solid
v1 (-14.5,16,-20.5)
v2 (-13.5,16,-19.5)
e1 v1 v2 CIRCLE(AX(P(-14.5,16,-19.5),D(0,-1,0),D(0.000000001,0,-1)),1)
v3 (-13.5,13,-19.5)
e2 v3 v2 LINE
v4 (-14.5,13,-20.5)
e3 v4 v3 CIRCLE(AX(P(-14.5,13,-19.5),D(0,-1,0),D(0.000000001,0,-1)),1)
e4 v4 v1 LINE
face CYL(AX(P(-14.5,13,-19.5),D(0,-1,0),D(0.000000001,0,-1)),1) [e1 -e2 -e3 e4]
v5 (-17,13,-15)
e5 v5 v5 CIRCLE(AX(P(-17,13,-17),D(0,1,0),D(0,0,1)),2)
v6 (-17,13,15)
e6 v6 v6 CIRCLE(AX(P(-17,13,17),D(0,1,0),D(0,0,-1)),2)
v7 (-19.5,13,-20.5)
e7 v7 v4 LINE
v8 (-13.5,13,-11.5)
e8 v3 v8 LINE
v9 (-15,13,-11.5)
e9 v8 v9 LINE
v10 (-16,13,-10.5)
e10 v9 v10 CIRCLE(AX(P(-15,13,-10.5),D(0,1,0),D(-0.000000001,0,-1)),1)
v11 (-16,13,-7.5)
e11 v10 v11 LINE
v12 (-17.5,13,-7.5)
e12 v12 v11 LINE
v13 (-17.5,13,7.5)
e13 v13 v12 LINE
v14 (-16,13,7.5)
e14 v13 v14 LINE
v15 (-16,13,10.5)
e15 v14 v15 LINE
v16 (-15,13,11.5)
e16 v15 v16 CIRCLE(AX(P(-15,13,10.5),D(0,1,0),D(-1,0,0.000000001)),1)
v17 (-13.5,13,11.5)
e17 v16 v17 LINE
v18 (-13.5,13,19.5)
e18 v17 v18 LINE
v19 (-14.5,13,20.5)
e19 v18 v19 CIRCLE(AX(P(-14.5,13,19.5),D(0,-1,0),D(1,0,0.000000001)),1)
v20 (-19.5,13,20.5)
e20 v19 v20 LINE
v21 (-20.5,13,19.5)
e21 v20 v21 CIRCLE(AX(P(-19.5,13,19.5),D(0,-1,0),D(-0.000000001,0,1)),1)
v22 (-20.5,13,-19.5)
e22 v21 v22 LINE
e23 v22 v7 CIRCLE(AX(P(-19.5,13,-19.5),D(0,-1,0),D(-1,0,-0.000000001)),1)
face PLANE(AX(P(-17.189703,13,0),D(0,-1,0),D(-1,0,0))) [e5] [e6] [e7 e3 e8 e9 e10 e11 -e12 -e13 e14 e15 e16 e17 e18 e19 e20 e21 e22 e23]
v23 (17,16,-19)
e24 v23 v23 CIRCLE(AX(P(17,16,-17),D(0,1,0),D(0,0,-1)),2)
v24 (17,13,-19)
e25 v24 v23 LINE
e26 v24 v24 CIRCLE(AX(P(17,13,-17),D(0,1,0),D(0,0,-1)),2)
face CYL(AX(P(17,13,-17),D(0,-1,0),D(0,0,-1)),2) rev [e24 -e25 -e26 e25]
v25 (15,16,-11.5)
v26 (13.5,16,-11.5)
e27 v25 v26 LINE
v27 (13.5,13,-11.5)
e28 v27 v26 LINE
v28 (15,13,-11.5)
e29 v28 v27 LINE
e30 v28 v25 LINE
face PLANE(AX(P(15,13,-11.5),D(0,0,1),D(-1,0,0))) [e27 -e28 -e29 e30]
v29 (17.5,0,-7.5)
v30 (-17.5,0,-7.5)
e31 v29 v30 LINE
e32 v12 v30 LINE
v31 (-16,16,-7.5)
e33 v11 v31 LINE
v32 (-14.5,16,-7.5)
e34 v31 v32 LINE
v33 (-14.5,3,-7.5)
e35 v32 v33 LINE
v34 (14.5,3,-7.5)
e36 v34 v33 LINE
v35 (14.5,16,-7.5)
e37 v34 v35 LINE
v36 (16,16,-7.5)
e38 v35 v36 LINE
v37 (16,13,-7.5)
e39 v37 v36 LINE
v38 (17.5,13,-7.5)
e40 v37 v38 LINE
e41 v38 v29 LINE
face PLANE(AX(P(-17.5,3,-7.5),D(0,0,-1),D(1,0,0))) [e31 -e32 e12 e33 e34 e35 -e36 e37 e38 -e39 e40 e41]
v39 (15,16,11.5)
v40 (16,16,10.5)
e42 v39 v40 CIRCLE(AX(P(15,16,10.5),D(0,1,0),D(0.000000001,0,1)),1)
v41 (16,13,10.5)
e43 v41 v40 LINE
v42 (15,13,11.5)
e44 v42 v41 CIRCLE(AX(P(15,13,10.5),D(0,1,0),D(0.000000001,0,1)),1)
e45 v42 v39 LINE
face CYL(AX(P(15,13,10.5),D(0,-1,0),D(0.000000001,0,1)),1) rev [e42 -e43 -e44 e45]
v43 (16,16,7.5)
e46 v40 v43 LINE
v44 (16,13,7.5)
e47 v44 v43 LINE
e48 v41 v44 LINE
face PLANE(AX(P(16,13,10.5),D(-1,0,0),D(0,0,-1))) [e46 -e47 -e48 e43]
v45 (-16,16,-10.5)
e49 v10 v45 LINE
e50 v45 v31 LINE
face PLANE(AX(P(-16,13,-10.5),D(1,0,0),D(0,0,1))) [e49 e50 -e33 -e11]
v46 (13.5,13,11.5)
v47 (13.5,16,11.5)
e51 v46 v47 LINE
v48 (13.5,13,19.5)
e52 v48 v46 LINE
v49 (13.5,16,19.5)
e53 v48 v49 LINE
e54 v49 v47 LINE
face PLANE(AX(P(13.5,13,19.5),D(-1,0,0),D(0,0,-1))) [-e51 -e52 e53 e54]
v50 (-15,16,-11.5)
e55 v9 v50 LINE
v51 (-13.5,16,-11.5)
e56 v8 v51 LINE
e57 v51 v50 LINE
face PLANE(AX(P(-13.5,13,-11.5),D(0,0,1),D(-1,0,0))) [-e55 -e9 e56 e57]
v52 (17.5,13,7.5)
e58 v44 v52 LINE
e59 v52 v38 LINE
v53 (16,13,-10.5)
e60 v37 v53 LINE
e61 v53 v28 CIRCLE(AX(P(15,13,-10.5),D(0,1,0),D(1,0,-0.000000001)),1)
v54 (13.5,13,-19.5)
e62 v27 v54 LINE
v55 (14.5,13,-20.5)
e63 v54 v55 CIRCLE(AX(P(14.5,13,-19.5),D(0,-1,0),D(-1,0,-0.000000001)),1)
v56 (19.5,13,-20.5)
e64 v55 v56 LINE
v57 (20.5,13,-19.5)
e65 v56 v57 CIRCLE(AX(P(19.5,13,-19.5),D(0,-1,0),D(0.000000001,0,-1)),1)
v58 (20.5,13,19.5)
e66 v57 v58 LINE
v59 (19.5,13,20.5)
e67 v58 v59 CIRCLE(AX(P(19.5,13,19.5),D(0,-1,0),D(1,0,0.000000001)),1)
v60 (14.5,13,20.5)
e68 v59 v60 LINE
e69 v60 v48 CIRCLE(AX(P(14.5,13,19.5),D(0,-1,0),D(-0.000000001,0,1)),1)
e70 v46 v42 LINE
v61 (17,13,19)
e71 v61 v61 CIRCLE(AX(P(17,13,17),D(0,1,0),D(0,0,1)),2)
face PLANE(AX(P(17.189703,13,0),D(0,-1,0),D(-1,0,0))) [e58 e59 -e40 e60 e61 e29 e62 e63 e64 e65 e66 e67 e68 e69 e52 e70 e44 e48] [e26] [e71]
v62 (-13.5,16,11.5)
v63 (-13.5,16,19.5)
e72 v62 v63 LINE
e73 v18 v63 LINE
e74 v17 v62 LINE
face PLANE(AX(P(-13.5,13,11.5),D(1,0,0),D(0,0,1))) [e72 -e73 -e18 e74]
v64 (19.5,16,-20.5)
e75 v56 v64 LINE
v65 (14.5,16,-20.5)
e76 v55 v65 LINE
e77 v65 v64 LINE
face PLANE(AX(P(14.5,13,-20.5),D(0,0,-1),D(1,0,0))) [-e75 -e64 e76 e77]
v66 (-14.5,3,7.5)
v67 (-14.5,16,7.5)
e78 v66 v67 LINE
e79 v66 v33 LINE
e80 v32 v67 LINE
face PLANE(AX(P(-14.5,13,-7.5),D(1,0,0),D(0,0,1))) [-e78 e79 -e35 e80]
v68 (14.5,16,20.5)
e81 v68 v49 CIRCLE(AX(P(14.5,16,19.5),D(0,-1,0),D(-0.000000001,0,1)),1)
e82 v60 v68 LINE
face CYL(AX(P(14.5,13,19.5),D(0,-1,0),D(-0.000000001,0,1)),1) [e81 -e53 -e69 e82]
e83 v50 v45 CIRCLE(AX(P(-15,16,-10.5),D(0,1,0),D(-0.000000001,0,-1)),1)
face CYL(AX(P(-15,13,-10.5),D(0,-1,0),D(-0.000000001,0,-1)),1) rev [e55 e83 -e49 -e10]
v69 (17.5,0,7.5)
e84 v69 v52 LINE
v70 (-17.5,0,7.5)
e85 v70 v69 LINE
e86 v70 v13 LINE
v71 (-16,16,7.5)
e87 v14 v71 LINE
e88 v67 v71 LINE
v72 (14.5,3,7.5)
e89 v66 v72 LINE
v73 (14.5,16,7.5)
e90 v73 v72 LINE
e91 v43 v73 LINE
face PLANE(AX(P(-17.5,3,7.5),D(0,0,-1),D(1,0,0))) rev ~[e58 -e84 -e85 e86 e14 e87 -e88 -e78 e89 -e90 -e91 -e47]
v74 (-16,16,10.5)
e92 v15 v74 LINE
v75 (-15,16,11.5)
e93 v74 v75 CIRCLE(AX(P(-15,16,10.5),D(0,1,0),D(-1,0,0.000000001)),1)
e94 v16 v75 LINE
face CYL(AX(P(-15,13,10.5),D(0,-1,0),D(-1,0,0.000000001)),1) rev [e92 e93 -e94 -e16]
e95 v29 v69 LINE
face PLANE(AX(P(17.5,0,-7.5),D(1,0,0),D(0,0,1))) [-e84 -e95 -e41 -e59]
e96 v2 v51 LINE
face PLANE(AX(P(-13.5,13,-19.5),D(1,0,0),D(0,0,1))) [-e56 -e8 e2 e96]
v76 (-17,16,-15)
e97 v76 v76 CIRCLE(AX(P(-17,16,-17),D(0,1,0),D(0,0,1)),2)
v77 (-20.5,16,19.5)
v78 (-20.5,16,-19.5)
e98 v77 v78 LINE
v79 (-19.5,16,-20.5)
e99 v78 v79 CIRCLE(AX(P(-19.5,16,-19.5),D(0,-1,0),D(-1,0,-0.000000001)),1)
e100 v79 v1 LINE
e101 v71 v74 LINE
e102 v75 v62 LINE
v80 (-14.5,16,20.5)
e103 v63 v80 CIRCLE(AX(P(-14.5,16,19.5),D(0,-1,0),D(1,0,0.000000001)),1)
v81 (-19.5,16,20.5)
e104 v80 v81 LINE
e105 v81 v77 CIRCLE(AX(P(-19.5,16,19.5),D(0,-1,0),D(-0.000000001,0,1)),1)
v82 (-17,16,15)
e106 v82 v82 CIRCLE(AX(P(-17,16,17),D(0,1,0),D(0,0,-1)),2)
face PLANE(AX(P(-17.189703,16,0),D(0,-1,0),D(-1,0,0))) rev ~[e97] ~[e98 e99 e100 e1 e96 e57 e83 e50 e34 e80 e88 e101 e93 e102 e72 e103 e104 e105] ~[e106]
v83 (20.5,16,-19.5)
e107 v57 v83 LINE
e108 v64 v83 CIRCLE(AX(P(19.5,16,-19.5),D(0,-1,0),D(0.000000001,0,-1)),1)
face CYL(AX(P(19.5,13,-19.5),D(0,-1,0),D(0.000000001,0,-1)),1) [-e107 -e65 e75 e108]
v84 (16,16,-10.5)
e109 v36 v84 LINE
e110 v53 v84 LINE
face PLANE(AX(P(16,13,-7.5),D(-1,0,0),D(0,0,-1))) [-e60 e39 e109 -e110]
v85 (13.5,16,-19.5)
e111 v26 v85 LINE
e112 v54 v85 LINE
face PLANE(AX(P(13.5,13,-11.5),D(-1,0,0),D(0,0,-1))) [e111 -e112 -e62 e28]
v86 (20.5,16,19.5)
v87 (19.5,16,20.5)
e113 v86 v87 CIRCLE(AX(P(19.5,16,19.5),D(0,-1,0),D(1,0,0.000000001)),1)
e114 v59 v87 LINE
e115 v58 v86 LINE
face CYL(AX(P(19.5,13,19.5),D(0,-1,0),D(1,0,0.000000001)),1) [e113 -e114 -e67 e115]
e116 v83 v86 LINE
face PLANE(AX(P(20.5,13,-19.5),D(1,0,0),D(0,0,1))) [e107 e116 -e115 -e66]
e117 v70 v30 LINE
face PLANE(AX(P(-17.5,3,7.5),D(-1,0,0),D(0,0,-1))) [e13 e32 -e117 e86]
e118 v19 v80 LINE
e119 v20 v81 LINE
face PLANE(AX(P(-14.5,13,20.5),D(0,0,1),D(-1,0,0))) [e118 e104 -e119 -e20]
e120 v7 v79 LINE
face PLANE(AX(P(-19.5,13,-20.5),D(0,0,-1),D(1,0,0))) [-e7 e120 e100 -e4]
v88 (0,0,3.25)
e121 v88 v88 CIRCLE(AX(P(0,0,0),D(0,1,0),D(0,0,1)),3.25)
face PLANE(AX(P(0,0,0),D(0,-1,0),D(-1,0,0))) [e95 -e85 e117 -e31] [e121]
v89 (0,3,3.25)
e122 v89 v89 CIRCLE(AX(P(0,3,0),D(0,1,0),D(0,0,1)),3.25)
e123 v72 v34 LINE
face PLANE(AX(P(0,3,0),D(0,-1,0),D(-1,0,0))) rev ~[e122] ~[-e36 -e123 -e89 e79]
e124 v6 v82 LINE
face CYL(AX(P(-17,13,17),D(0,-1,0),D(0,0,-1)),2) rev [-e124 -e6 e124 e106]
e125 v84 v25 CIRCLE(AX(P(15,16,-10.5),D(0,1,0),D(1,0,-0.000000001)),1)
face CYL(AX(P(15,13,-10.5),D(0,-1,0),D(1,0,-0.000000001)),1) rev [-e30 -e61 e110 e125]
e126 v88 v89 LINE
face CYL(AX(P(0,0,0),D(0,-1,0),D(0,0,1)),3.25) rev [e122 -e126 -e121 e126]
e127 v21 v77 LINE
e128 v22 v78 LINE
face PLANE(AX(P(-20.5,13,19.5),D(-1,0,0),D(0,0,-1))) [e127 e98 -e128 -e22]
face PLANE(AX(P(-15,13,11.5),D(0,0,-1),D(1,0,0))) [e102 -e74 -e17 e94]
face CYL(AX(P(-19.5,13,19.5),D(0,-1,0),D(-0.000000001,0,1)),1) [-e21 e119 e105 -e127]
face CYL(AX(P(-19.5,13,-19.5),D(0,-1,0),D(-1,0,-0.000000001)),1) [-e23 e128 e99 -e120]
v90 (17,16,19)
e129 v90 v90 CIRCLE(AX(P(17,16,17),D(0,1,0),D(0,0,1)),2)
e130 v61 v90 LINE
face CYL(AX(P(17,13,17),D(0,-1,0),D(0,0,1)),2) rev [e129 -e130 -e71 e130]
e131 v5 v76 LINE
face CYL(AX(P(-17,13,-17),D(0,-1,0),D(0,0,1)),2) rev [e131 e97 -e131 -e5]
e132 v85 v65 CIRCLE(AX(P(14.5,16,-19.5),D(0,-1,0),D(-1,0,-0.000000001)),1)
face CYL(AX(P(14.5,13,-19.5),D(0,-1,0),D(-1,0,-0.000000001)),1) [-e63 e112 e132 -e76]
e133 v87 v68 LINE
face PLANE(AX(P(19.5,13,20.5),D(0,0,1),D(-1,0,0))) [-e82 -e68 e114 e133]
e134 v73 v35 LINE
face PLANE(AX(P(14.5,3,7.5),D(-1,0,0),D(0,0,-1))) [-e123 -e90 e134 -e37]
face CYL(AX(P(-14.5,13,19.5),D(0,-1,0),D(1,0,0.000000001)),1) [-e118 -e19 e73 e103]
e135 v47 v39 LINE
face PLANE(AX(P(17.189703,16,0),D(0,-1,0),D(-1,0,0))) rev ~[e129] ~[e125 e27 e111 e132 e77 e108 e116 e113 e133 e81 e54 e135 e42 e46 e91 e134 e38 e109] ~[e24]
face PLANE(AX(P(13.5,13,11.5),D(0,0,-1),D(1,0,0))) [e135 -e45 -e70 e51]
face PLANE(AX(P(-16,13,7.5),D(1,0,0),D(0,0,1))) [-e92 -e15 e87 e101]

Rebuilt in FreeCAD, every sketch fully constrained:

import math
import FreeCAD as App
import Part
import Sketcher

V = App.Vector

doc = App.newDocument("Part")
body = doc.addObject("PartDesign::Body", "Body")

# Sketch on XZ plane
sketch1 = body.newObject("Sketcher::SketchObject", "Sketch")
sketch1.AttachmentSupport = (doc.getObject("XZ_Plane"), [""])
sketch1.MapMode = "FlatFace"
sketch1.addGeometry([
    Part.LineSegment(V(17.5, -7.5, 0), V(-17.5, -7.5, 0)),  # 0
    Part.LineSegment(V(-17.5, -7.5, 0), V(-17.5, 7.5, 0)),  # 1
    Part.LineSegment(V(-17.5, 7.5, 0), V(17.5, 7.5, 0)),  # 2
    Part.LineSegment(V(17.5, 7.5, 0), V(17.5, -7.5, 0)),  # 3
    Part.Circle(V(0, 0, 0), V(0, 0, 1), 3.2),  # 4
], False)
sketch1.addConstraint([
    Sketcher.Constraint("Coincident", 0, 2, 1, 1),
    Sketcher.Constraint("Coincident", 1, 2, 2, 1),
    Sketcher.Constraint("Coincident", 2, 2, 3, 1),
    Sketcher.Constraint("Coincident", 3, 2, 0, 1),
    Sketcher.Constraint("Horizontal", 0),
    Sketcher.Constraint("Vertical", 1),
    Sketcher.Constraint("Horizontal", 2),
    Sketcher.Constraint("Vertical", 3),
    Sketcher.Constraint("Coincident", 4, 3, -1, 1),
    Sketcher.Constraint("Symmetric", 0, 2, 2, 2, -1, 1),
    Sketcher.Constraint("Diameter", 4, 6.5),
    Sketcher.Constraint("DistanceX", 0, 2, 0, 1, 35.0),
    Sketcher.Constraint("DistanceY", 1, 1, 1, 2, 15.0),
])
pad1 = body.newObject("PartDesign::Pad", "Pad")
pad1.Profile = sketch1
pad1.Length = 3
pad1.Reversed = True

# Sketch on XZ plane
sketch2 = body.newObject("Sketcher::SketchObject", "Sketch001")
sketch2.AttachmentSupport = (doc.getObject("XZ_Plane"), [""])
sketch2.MapMode = "FlatFace"
sketch2.AttachmentOffset = App.Placement(V(0, 0, -3), App.Rotation())
sketch2.addGeometry([
    Part.LineSegment(V(-17.5, -7.5, 0), V(-17.5, 7.5, 0)),  # 0
    Part.LineSegment(V(-17.5, 7.5, 0), V(-14.5, 7.5, 0)),  # 1
    Part.LineSegment(V(-14.5, 7.5, 0), V(-14.5, -7.5, 0)),  # 2
    Part.LineSegment(V(-14.5, -7.5, 0), V(-17.5, -7.5, 0)),  # 3
    Part.LineSegment(V(14.5, -7.5, 0), V(14.5, 7.5, 0)),  # 4
    Part.LineSegment(V(14.5, 7.5, 0), V(17.5, 7.5, 0)),  # 5
    Part.LineSegment(V(17.5, 7.5, 0), V(17.5, -7.5, 0)),  # 6
    Part.LineSegment(V(17.5, -7.5, 0), V(14.5, -7.5, 0)),  # 7
], False)
sketch2.addConstraint([
    Sketcher.Constraint("Coincident", 0, 2, 1, 1),
    Sketcher.Constraint("Coincident", 1, 2, 2, 1),
    Sketcher.Constraint("Coincident", 2, 2, 3, 1),
    Sketcher.Constraint("Coincident", 3, 2, 0, 1),
    Sketcher.Constraint("Coincident", 4, 2, 5, 1),
    Sketcher.Constraint("Coincident", 5, 2, 6, 1),
    Sketcher.Constraint("Coincident", 6, 2, 7, 1),
    Sketcher.Constraint("Coincident", 7, 2, 4, 1),
    Sketcher.Constraint("Vertical", 0),
    Sketcher.Constraint("Horizontal", 1),
    Sketcher.Constraint("Vertical", 2),
    Sketcher.Constraint("Horizontal", 3),
    Sketcher.Constraint("Vertical", 4),
    Sketcher.Constraint("Horizontal", 5),
    Sketcher.Constraint("Vertical", 6),
    Sketcher.Constraint("Horizontal", 7),
    Sketcher.Constraint("Symmetric", 2, 2, 4, 2, -1, 1),
    Sketcher.Constraint("Symmetric", 0, 2, 6, 2, -1, 1),
    Sketcher.Constraint("Horizontal", 1, 2, 4, 2),
    Sketcher.Constraint("DistanceX", 1, 1, 1, 2, 3.0),
    Sketcher.Constraint("DistanceY", 0, 1, 0, 2, 15.0),
    Sketcher.Constraint("DistanceX", 1, 2, 4, 2, 29.0),
])
pad2 = body.newObject("PartDesign::Pad", "Pad001")
pad2.Profile = sketch2
pad2.Length = 10
pad2.Reversed = True

# Sketch on XZ plane
sketch3 = body.newObject("Sketcher::SketchObject", "Sketch002")
sketch3.AttachmentSupport = (doc.getObject("XZ_Plane"), [""])
sketch3.MapMode = "FlatFace"
sketch3.AttachmentOffset = App.Placement(V(0, 0, -13), App.Rotation())
sketch3.addGeometry([
    Part.LineSegment(V(-13.5, 11.5, 0), V(-15, 11.5, 0)),  # 0
    Part.ArcOfCircle(Part.Circle(V(-15, 10.5, 0), V(0, 0, 1), 1), math.radians(90), math.radians(180)),  # 1
    Part.LineSegment(V(-16, 10.5, 0), V(-16, 7.5, 0)),  # 2
    Part.LineSegment(V(-16, 7.5, 0), V(-14.5, 7.5, 0)),  # 3
    Part.LineSegment(V(-14.5, 7.5, 0), V(-14.5, -7.5, 0)),  # 4
    Part.LineSegment(V(-14.5, -7.5, 0), V(-16, -7.5, 0)),  # 5
    Part.LineSegment(V(-16, -7.5, 0), V(-16, -10.5, 0)),  # 6
    Part.ArcOfCircle(Part.Circle(V(-15, -10.5, 0), V(0, 0, 1), 1), math.radians(-180), math.radians(-90)),  # 7
    Part.LineSegment(V(-15, -11.5, 0), V(-13.5, -11.5, 0)),  # 8
    Part.LineSegment(V(-13.5, -11.5, 0), V(-13.5, -19.5, 0)),  # 9
    Part.ArcOfCircle(Part.Circle(V(-14.5, -19.5, 0), V(0, 0, 1), 1), math.radians(-90), math.radians(0)),  # 10
    Part.LineSegment(V(-14.5, -20.5, 0), V(-19.5, -20.5, 0)),  # 11
    Part.ArcOfCircle(Part.Circle(V(-19.5, -19.5, 0), V(0, 0, 1), 1), math.radians(-180), math.radians(-90)),  # 12
    Part.LineSegment(V(-20.5, -19.5, 0), V(-20.5, 19.5, 0)),  # 13
    Part.ArcOfCircle(Part.Circle(V(-19.5, 19.5, 0), V(0, 0, 1), 1), math.radians(90), math.radians(180)),  # 14
    Part.LineSegment(V(-19.5, 20.5, 0), V(-14.5, 20.5, 0)),  # 15
    Part.ArcOfCircle(Part.Circle(V(-14.5, 19.5, 0), V(0, 0, 1), 1), math.radians(0), math.radians(90)),  # 16
    Part.LineSegment(V(-13.5, 19.5, 0), V(-13.5, 11.5, 0)),  # 17
    Part.Circle(V(-17, 17, 0), V(0, 0, 1), 2),  # 18
    Part.Circle(V(-17, -17, 0), V(0, 0, 1), 2),  # 19
    Part.LineSegment(V(16, -7.5, 0), V(14.5, -7.5, 0)),  # 20
    Part.LineSegment(V(14.5, -7.5, 0), V(14.5, 7.5, 0)),  # 21
    Part.LineSegment(V(14.5, 7.5, 0), V(16, 7.5, 0)),  # 22
    Part.LineSegment(V(16, 7.5, 0), V(16, 10.5, 0)),  # 23
    Part.ArcOfCircle(Part.Circle(V(15, 10.5, 0), V(0, 0, 1), 1), math.radians(0), math.radians(90)),  # 24
    Part.LineSegment(V(15, 11.5, 0), V(13.5, 11.5, 0)),  # 25
    Part.LineSegment(V(13.5, 11.5, 0), V(13.5, 19.5, 0)),  # 26
    Part.ArcOfCircle(Part.Circle(V(14.5, 19.5, 0), V(0, 0, 1), 1), math.radians(90), math.radians(180)),  # 27
    Part.LineSegment(V(14.5, 20.5, 0), V(19.5, 20.5, 0)),  # 28
    Part.ArcOfCircle(Part.Circle(V(19.5, 19.5, 0), V(0, 0, 1), 1), math.radians(0), math.radians(90)),  # 29
    Part.LineSegment(V(20.5, 19.5, 0), V(20.5, -19.5, 0)),  # 30
    Part.ArcOfCircle(Part.Circle(V(19.5, -19.5, 0), V(0, 0, 1), 1), math.radians(-90), math.radians(0)),  # 31
    Part.LineSegment(V(19.5, -20.5, 0), V(14.5, -20.5, 0)),  # 32
    Part.ArcOfCircle(Part.Circle(V(14.5, -19.5, 0), V(0, 0, 1), 1), math.radians(-180), math.radians(-90)),  # 33
    Part.LineSegment(V(13.5, -19.5, 0), V(13.5, -11.5, 0)),  # 34
    Part.LineSegment(V(13.5, -11.5, 0), V(15, -11.5, 0)),  # 35
    Part.ArcOfCircle(Part.Circle(V(15, -10.5, 0), V(0, 0, 1), 1), math.radians(-90), math.radians(0)),  # 36
    Part.LineSegment(V(16, -10.5, 0), V(16, -7.5, 0)),  # 37
    Part.Circle(V(17, 17, 0), V(0, 0, 1), 2),  # 38
    Part.Circle(V(17, -17, 0), V(0, 0, 1), 2),  # 39
], False)
sketch3.addConstraint([
    Sketcher.Constraint("Tangent", 0, 2, 1, 1),
    Sketcher.Constraint("Tangent", 1, 2, 2, 1),
    Sketcher.Constraint("Coincident", 2, 2, 3, 1),
    Sketcher.Constraint("Coincident", 3, 2, 4, 1),
    Sketcher.Constraint("Coincident", 4, 2, 5, 1),
    Sketcher.Constraint("Coincident", 5, 2, 6, 1),
    Sketcher.Constraint("Tangent", 6, 2, 7, 1),
    Sketcher.Constraint("Tangent", 7, 2, 8, 1),
    Sketcher.Constraint("Coincident", 8, 2, 9, 1),
    Sketcher.Constraint("Tangent", 9, 2, 10, 2),
    Sketcher.Constraint("Tangent", 10, 1, 11, 1),
    Sketcher.Constraint("Tangent", 11, 2, 12, 2),
    Sketcher.Constraint("Tangent", 12, 1, 13, 1),
    Sketcher.Constraint("Tangent", 13, 2, 14, 2),
    Sketcher.Constraint("Tangent", 14, 1, 15, 1),
    Sketcher.Constraint("Tangent", 15, 2, 16, 2),
    Sketcher.Constraint("Tangent", 16, 1, 17, 1),
    Sketcher.Constraint("Coincident", 17, 2, 0, 1),
    Sketcher.Constraint("Coincident", 20, 2, 21, 1),
    Sketcher.Constraint("Coincident", 21, 2, 22, 1),
    Sketcher.Constraint("Coincident", 22, 2, 23, 1),
    Sketcher.Constraint("Tangent", 23, 2, 24, 1),
    Sketcher.Constraint("Tangent", 24, 2, 25, 1),
    Sketcher.Constraint("Coincident", 25, 2, 26, 1),
    Sketcher.Constraint("Tangent", 26, 2, 27, 2),
    Sketcher.Constraint("Tangent", 27, 1, 28, 1),
    Sketcher.Constraint("Tangent", 28, 2, 29, 2),
    Sketcher.Constraint("Tangent", 29, 1, 30, 1),
    Sketcher.Constraint("Tangent", 30, 2, 31, 2),
    Sketcher.Constraint("Tangent", 31, 1, 32, 1),
    Sketcher.Constraint("Tangent", 32, 2, 33, 2),
    Sketcher.Constraint("Tangent", 33, 1, 34, 1),
    Sketcher.Constraint("Coincident", 34, 2, 35, 1),
    Sketcher.Constraint("Tangent", 35, 2, 36, 1),
    Sketcher.Constraint("Tangent", 36, 2, 37, 1),
    Sketcher.Constraint("Coincident", 37, 2, 20, 1),
    Sketcher.Constraint("Horizontal", 0),
    Sketcher.Constraint("Vertical", 2),
    Sketcher.Constraint("Horizontal", 3),
    Sketcher.Constraint("Vertical", 4),
    Sketcher.Constraint("Horizontal", 5),
    Sketcher.Constraint("Vertical", 6),
    Sketcher.Constraint("Horizontal", 8),
    Sketcher.Constraint("Vertical", 9),
    Sketcher.Constraint("Horizontal", 11),
    Sketcher.Constraint("Vertical", 13),
    Sketcher.Constraint("Horizontal", 15),
    Sketcher.Constraint("Vertical", 17),
    Sketcher.Constraint("Horizontal", 20),
    Sketcher.Constraint("Vertical", 21),
    Sketcher.Constraint("Horizontal", 22),
    Sketcher.Constraint("Vertical", 23),
    Sketcher.Constraint("Horizontal", 25),
    Sketcher.Constraint("Vertical", 26),
    Sketcher.Constraint("Horizontal", 28),
    Sketcher.Constraint("Vertical", 30),
    Sketcher.Constraint("Horizontal", 32),
    Sketcher.Constraint("Vertical", 34),
    Sketcher.Constraint("Horizontal", 35),
    Sketcher.Constraint("Vertical", 37),
    Sketcher.Constraint("Equal", 1, 7),
    Sketcher.Constraint("Equal", 7, 10),
    Sketcher.Constraint("Equal", 10, 12),
    Sketcher.Constraint("Equal", 12, 14),
    Sketcher.Constraint("Equal", 14, 16),
    Sketcher.Constraint("Equal", 18, 19),
    Sketcher.Constraint("Equal", 16, 24),
    Sketcher.Constraint("Equal", 24, 27),
    Sketcher.Constraint("Equal", 27, 29),
    Sketcher.Constraint("Equal", 29, 31),
    Sketcher.Constraint("Equal", 31, 33),
    Sketcher.Constraint("Equal", 33, 36),
    Sketcher.Constraint("Equal", 19, 38),
    Sketcher.Constraint("Equal", 38, 39),
    Sketcher.Constraint("Symmetric", 7, 3, 24, 3, -1, 1),
    Sketcher.Constraint("Symmetric", 10, 3, 27, 3, -1, 1),
    Sketcher.Constraint("Symmetric", 14, 3, 31, 3, -1, 1),
    Sketcher.Constraint("Symmetric", 1, 3, 36, 3, -1, 1),
    Sketcher.Constraint("Symmetric", 19, 3, 38, 3, -1, 1),
    Sketcher.Constraint("Symmetric", 18, 3, 39, 3, -1, 1),
    Sketcher.Constraint("Symmetric", 3, 2, 20, 2, -1, 1),
    Sketcher.Constraint("Symmetric", 1, 3, 24, 3, -2),
    Sketcher.Constraint("Symmetric", 16, 3, 27, 3, -2),
    Sketcher.Constraint("Symmetric", 18, 3, 38, 3, -2),
    Sketcher.Constraint("Horizontal", 5, 2, 20, 2),
    Sketcher.Constraint("Horizontal", 3, 2, 21, 2),
    Sketcher.Constraint("Vertical", 27, 3, 33, 3),
    Sketcher.Constraint("Vertical", 16, 3, 3, 2),
    Sketcher.Constraint("Diameter", 18, 4.0),
    Sketcher.Constraint("Radius", 1, 1.0),
    Sketcher.Constraint("DistanceX", 11, 2, 11, 1, 5.0),
    Sketcher.Constraint("DistanceY", 2, 2, 2, 1, 3.0),
    Sketcher.Constraint("DistanceY", 4, 2, 4, 1, 15.0),
    Sketcher.Constraint("DistanceY", 9, 2, 9, 1, 8.0),
    Sketcher.Constraint("DistanceX", 0, 2, 0, 1, 1.5),
    Sketcher.Constraint("DistanceX", 1, 3, -1, 1, 15.0),
    Sketcher.Constraint("DistanceX", 18, 3, -1, 1, 17.0),
    Sketcher.Constraint("DistanceY", -1, 1, 18, 3, 17.0),
])
pad3 = body.newObject("PartDesign::Pad", "Pad002")
pad3.Profile = sketch3
pad3.Length = 3
pad3.Reversed = True

doc.recompute()
